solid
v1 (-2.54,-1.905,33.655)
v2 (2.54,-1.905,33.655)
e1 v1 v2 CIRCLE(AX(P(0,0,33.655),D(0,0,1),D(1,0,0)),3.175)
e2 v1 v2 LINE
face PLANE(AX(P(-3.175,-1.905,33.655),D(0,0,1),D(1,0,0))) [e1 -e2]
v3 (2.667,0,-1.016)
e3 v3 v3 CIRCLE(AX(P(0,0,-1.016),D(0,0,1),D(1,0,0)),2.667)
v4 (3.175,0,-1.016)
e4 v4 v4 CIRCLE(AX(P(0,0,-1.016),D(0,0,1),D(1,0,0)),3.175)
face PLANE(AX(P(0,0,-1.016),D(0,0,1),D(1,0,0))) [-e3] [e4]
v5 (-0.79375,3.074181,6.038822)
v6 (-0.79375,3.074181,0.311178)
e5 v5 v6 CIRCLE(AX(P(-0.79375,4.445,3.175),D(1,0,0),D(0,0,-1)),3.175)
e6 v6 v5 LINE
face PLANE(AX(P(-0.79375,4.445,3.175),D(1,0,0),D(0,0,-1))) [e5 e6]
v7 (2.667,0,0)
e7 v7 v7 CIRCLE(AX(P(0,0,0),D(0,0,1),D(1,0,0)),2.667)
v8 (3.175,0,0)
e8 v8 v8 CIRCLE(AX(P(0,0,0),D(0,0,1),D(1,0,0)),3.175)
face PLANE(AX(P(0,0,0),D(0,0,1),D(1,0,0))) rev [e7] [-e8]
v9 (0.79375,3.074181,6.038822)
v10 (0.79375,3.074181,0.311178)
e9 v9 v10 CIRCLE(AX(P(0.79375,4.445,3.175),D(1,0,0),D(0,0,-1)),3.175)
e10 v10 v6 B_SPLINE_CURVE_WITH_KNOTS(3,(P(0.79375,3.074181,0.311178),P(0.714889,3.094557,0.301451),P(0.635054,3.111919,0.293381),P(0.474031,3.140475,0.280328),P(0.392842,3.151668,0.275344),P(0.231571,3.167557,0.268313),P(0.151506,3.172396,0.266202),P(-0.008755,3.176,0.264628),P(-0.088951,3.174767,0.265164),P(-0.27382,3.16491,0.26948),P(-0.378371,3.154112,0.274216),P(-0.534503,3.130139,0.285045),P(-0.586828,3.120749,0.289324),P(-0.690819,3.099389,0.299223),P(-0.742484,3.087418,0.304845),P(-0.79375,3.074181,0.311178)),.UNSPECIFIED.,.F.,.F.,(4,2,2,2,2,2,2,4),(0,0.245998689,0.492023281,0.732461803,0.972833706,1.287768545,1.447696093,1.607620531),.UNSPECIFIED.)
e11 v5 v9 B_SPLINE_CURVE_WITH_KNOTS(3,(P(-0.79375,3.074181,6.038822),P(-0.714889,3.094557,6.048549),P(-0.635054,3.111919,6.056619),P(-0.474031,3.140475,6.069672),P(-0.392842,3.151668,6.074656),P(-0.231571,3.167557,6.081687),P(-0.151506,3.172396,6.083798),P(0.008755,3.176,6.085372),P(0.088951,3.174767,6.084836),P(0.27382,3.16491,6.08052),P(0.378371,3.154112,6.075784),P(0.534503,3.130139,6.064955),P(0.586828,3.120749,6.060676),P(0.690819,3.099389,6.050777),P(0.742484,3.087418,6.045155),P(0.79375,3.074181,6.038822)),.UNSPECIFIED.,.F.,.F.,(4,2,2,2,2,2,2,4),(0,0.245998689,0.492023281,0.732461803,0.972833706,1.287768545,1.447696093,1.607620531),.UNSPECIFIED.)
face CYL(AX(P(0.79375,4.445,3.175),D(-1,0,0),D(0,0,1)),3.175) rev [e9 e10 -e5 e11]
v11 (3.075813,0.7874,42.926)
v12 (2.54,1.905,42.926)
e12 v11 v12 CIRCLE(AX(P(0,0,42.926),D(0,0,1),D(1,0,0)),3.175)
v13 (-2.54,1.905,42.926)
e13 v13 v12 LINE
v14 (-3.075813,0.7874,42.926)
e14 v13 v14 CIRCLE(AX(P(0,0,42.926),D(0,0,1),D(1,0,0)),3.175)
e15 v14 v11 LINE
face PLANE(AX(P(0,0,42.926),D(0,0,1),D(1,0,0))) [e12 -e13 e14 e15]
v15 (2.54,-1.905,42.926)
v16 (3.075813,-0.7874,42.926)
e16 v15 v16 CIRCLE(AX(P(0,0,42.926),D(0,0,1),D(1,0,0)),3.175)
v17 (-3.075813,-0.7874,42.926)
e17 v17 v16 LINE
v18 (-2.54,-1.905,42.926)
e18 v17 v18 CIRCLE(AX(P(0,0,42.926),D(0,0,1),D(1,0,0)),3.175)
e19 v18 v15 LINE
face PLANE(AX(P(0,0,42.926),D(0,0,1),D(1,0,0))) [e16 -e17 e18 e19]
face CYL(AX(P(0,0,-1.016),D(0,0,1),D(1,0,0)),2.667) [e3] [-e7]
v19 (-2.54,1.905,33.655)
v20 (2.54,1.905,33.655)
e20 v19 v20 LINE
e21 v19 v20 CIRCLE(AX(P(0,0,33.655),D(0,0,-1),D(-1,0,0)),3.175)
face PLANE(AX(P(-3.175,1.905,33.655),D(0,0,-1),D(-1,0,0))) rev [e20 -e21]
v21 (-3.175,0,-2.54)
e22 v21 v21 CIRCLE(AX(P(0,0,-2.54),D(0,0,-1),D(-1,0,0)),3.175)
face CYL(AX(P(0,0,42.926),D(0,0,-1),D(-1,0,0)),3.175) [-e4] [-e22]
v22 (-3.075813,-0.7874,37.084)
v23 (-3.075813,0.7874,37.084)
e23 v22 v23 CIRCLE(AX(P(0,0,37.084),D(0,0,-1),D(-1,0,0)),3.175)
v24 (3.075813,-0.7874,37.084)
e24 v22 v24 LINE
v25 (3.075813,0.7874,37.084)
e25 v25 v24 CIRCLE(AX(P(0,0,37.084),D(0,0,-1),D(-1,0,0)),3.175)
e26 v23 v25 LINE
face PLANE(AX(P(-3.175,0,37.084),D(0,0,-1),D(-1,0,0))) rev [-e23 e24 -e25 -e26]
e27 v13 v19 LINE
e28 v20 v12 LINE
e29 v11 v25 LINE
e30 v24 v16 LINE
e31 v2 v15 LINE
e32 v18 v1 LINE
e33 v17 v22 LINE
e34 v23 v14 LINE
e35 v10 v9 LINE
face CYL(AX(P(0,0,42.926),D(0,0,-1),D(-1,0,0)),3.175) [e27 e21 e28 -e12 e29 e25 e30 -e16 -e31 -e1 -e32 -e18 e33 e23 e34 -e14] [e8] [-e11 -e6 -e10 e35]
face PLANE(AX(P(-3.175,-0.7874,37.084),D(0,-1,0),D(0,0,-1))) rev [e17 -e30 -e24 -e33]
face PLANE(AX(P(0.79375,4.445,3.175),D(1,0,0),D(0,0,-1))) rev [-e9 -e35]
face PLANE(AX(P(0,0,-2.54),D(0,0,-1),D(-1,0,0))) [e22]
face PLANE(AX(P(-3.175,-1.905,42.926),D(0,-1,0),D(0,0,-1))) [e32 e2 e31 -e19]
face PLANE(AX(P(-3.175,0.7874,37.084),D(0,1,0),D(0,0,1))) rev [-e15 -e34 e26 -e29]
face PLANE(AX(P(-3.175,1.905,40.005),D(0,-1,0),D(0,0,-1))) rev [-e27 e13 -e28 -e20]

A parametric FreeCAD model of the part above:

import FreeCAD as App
import Part
import Sketcher
from FreeCAD import Vector
Q = App.Units.Quantity


def add_polygon(sketch, points):
    """Adds a closed chain of lines whose ends are joined by coincident constraints."""
    first, n = sketch.GeometryCount, len(points)
    for a, b in zip(points, points[1:] + points[:1]):
        sketch.addGeometry(Part.LineSegment(App.Vector(*a, 0), App.Vector(*b, 0)), False)
    for i in range(n):
        sketch.addConstraint(Sketcher.Constraint("Coincident", first + i, 2, first + (i + 1) % n, 1))

doc = App.newDocument("Part")
params = doc.addObject("Spreadsheet::Sheet", "Params")
for row, (alias, value) in enumerate([
    ("sketch1_diameter", "0.25 in"),
    ("pad1_length", "1.69 in"),
    ("sketch2_diameter", "0.25 in"),
    ("pocket1_length", "0.03125 in"),
    ("pocket1_length2", "0.03125 in"),
    ("sketch3_diameter", "0.25 in"),
    ("pad2_length", "0.1 in"),
    ("sketch4_diameter", "0.21 in"),
    ("pocket2_length", "0.04 in"),
    ("sketch5_height", "0.23 in"),
    ("sketch5_width", "0.062 in"),
    ("sketch6_width", "0.05 in"),
    ("sketch6_height", "0.365 in"),
    ("pocket4_length", "8.35 mm"),
], start=1):
    params.set(f"A{row}", alias)
    params.set(f"B{row}", "=" + value)
    params.setAlias(f"B{row}", alias)

body = doc.addObject("PartDesign::Body", "Body")

# Sketch on XY plane
sketch1 = body.newObject("Sketcher::SketchObject", "Sketch")
sketch1.AttachmentSupport = (doc.getObject("XY_Plane"), [""])
sketch1.MapMode = "FlatFace"
sketch1.addGeometry(Part.Circle(Vector(0, 0, 0), Vector(0, 0, 1), 3.175), False)
sketch1.addConstraint([
    Sketcher.Constraint("Coincident", 0, 3, -1, 1),
    Sketcher.Constraint("Diameter", 0, Q("0.25 in")),
])
sketch1.setExpression("Constraints[1]", "Params.sketch1_diameter")
pad1 = body.newObject("PartDesign::Pad", "Pad")
pad1.Profile = sketch1
pad1.setExpression("Length", "Params.pad1_length")

# Sketch on YZ plane
sketch2 = body.newObject("Sketcher::SketchObject", "Sketch001")
sketch2.AttachmentSupport = (doc.getObject("YZ_Plane"), [""])
sketch2.MapMode = "FlatFace"
sketch2.addGeometry(Part.Circle(Vector(4.445, 3.175, 0), Vector(0, 0, 1), 3.175), False)
sketch2.addConstraint([
    Sketcher.Constraint("Diameter", 0, Q("0.25 in")),
    Sketcher.Constraint("DistanceX", -1, 1, 0, 3, Q("0.175 in")),
    Sketcher.Constraint("DistanceY", -1, 1, 0, 3, Q("0.125 in")),
])
sketch2.setExpression("Constraints[0]", "Params.sketch2_diameter")
pocket1 = body.newObject("PartDesign::Pocket", "Pocket")
pocket1.Profile = sketch2
pocket1.Type = "TwoLengths"
pocket1.setExpression("Length", "Params.pocket1_length")
pocket1.setExpression("Length2", "Params.pocket1_length2")
pocket1.Reversed = True

# Sketch on XY plane
sketch3 = body.newObject("Sketcher::SketchObject", "Sketch002")
sketch3.AttachmentSupport = (doc.getObject("XY_Plane"), [""])
sketch3.MapMode = "FlatFace"
sketch3.addGeometry(Part.Circle(Vector(0, 0, 0), Vector(0, 0, 1), 3.175), False)
sketch3.addConstraint([
    Sketcher.Constraint("Coincident", 0, 3, -1, 1),
    Sketcher.Constraint("Diameter", 0, Q("0.25 in")),
])
sketch3.setExpression("Constraints[1]", "Params.sketch3_diameter")
pad2 = body.newObject("PartDesign::Pad", "Pad001")
pad2.Profile = sketch3
pad2.setExpression("Length", "Params.pad2_length")
pad2.Reversed = True

# Sketch on XY plane
sketch4 = body.newObject("Sketcher::SketchObject", "Sketch003")
sketch4.AttachmentSupport = (doc.getObject("XY_Plane"), [""])
sketch4.MapMode = "FlatFace"
add_polygon(sketch4, [(-8.809, 8.809), (-8.809, -8.809), (8.809, -8.809), (8.809, 8.809)])  # lines 0-3
sketch4.addGeometry(Part.Circle(Vector(0, 0, 0), Vector(0, 0, 1), 2.667), False)  # 4
sketch4.addConstraint([
    Sketcher.Constraint("Vertical", 0),
    Sketcher.Constraint("Horizontal", 1),
    Sketcher.Constraint("Vertical", 2),
    Sketcher.Constraint("Horizontal", 3),
    Sketcher.Constraint("Coincident", 4, 3, -1, 1),
    Sketcher.Constraint("Symmetric", 0, 2, 2, 2, -1, 1),
    Sketcher.Constraint("Equal", 3, 0),
    Sketcher.Constraint("Diameter", 4, Q("0.21 in")),
    Sketcher.Constraint("DistanceX", 1, 1, 1, 2, 17.618),
])
sketch4.setExpression("Constraints[11]", "Params.sketch4_diameter")
pocket2 = body.newObject("PartDesign::Pocket", "Pocket001")
pocket2.Profile = sketch4
pocket2.setExpression("Length", "Params.pocket2_length")

# Sketch on YZ plane
sketch5 = body.newObject("Sketcher::SketchObject", "Sketch004")
sketch5.AttachmentSupport = (doc.getObject("YZ_Plane"), [""])
sketch5.MapMode = "FlatFace"
add_polygon(sketch5, [(0.7874, 42.926), (-0.7874, 42.926), (-0.7874, 37.084), (0.7874, 37.084)])  # lines 0-3
sketch5.addConstraint([
    Sketcher.Constraint("Horizontal", 0),
    Sketcher.Constraint("Vertical", 1),
    Sketcher.Constraint("Horizontal", 2),
    Sketcher.Constraint("Vertical", 3),
    Sketcher.Constraint("DistanceY", 1, 2, 1, 1, Q("0.23 in")),
    Sketcher.Constraint("DistanceX", 0, 2, 0, 1, Q("0.062 in")),
    Sketcher.Constraint("DistanceY", -1, 1, 0, 2, Q("1.69 in")),
    Sketcher.Constraint("DistanceX", 0, 2, -1, 1, Q("0.031 in")),
])
sketch5.setExpression("Constraints[8]", "Params.sketch5_height")
sketch5.setExpression("Constraints[9]", "Params.sketch5_width")
pocket3 = body.newObject("PartDesign::Pocket", "Pocket002")
pocket3.Profile = sketch5
pocket3.Type = "ThroughAll"
pocket3.Midplane = True

# Sketch on YZ plane
sketch6 = body.newObject("Sketcher::SketchObject", "Sketch005")
sketch6.AttachmentSupport = (doc.getObject("YZ_Plane"), [""])
sketch6.MapMode = "FlatFace"
add_polygon(sketch6, [(1.905, 42.926), (1.905, 33.655), (3.175, 33.655), (3.175, 42.926)])  # lines 0-3
sketch6.addConstraint([
    Sketcher.Constraint("Vertical", 0),
    Sketcher.Constraint("Horizontal", 1),
    Sketcher.Constraint("Vertical", 2),
    Sketcher.Constraint("Horizontal", 3),
    Sketcher.Constraint("DistanceX", 1, 1, 1, 2, Q("0.05 in")),
    Sketcher.Constraint("DistanceY", 0, 2, 0, 1, Q("0.365 in")),
    Sketcher.Constraint("DistanceY", -1, 1, 2, 2, Q("1.69 in")),
    Sketcher.Constraint("DistanceX", -1, 1, 0, 2, Q("0.075 in")),
])
sketch6.setExpression("Constraints[8]", "Params.sketch6_width")
sketch6.setExpression("Constraints[9]", "Params.sketch6_height")
pocket4 = body.newObject("PartDesign::Pocket", "Pocket003")
pocket4.Profile = sketch6
pocket4.setExpression("Length", "Params.pocket4_length")
pocket4.Midplane = True
doc.recompute()

mirrored = body.newObject("PartDesign::Mirrored", "Mirrored")
mirrored.Originals = [pocket4]
mirrored.MirrorPlane = (doc.getObject("XZ_Plane"), [""])
body.Tip = mirrored

doc.recompute()
